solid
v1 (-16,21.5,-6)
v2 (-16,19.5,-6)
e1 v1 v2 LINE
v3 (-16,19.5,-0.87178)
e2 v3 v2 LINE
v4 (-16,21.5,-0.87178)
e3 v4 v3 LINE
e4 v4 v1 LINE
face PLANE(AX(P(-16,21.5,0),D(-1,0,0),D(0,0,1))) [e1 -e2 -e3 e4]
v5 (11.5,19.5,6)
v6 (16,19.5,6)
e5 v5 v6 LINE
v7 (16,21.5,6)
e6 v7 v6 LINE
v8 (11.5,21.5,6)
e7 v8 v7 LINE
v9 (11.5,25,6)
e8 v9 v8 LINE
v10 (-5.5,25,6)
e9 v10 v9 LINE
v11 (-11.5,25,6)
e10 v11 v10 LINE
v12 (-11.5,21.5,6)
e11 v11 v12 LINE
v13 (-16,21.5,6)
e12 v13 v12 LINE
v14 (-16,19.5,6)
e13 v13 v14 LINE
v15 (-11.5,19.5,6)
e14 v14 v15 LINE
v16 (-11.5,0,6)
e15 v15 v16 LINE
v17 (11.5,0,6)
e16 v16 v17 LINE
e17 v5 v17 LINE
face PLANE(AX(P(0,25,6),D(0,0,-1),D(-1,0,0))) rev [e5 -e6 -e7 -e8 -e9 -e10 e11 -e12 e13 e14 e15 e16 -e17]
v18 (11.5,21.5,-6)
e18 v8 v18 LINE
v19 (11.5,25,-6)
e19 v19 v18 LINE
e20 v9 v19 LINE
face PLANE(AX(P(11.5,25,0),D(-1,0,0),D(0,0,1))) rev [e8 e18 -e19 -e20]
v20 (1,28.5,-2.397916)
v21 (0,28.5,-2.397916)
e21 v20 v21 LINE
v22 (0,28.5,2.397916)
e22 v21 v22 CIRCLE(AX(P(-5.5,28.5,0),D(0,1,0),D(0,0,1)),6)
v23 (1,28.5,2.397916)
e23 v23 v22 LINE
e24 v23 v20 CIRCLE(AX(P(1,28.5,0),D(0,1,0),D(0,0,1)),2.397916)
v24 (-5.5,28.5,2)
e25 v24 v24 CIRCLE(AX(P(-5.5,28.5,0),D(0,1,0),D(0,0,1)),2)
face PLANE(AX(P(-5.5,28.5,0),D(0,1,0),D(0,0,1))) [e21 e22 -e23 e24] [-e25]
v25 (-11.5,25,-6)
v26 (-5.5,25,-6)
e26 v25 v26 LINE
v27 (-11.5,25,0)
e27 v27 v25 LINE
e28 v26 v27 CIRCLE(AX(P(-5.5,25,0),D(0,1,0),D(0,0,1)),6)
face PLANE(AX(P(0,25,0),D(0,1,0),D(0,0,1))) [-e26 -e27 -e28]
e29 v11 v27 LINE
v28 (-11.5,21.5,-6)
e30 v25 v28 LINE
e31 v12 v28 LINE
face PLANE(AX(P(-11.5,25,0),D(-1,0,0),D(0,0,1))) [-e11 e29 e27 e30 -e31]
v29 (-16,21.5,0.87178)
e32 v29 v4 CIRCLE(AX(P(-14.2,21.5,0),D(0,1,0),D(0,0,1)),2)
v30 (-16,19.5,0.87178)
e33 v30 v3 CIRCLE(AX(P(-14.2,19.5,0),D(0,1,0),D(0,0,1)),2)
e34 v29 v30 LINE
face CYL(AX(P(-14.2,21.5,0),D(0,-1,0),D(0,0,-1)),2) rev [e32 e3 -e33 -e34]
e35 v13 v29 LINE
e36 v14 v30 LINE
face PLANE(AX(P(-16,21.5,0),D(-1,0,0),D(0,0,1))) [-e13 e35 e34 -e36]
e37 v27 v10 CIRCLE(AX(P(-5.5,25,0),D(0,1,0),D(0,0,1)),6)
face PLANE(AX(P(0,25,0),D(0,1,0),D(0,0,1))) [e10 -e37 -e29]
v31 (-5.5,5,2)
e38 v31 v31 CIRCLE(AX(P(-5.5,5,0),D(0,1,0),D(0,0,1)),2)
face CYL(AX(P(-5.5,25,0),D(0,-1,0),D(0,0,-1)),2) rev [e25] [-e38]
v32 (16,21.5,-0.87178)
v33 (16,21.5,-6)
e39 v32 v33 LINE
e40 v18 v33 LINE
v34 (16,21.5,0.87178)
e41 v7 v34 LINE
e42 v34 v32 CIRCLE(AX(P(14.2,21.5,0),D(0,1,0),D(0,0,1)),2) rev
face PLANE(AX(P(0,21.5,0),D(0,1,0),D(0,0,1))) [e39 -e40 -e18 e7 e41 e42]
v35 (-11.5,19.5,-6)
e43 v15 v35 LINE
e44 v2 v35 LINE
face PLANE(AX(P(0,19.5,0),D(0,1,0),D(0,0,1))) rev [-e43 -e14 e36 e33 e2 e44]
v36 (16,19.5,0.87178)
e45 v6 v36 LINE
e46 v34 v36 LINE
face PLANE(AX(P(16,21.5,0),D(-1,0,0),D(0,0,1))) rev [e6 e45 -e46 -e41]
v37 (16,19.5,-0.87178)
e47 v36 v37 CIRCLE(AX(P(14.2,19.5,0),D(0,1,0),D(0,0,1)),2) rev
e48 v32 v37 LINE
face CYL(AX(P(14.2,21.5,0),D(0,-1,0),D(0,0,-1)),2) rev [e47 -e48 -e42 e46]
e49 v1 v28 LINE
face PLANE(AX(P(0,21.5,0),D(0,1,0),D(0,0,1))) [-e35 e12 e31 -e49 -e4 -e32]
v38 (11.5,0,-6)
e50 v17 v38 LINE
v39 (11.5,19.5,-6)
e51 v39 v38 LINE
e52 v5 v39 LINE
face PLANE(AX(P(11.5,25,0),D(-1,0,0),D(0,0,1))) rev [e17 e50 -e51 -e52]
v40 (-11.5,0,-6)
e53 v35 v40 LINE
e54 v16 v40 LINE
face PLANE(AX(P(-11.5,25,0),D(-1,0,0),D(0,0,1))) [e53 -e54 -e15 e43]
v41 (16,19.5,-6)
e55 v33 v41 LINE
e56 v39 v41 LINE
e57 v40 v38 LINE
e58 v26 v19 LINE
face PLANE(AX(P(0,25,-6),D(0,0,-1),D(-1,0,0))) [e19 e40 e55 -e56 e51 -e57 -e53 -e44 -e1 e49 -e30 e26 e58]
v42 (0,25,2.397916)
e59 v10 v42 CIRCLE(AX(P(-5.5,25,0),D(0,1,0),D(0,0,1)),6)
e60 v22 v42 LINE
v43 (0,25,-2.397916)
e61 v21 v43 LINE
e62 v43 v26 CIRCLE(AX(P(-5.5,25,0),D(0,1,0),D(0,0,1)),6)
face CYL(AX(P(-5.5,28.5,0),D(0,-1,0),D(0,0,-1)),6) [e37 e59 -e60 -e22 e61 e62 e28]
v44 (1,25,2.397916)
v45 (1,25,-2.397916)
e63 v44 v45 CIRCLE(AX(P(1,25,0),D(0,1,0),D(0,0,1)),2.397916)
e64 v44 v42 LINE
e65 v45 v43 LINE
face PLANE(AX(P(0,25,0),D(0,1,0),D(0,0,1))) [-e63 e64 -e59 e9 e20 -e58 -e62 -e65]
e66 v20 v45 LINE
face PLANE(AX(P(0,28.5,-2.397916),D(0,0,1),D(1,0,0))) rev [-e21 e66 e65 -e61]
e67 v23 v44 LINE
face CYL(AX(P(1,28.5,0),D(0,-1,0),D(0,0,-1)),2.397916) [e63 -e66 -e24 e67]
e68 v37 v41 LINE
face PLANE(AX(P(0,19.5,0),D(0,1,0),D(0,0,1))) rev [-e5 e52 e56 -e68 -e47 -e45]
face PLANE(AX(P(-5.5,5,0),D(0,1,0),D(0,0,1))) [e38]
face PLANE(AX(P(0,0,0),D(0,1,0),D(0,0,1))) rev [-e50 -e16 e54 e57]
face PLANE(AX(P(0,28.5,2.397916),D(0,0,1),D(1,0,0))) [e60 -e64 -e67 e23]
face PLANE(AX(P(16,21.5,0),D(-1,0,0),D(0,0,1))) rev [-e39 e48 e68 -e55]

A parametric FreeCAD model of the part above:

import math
import FreeCAD as App
import Part
import Sketcher


def add_polygon(sketch, points):
    """Adds a closed chain of lines whose ends are joined by coincident constraints."""
    first, n = sketch.GeometryCount, len(points)
    for a, b in zip(points, points[1:] + points[:1]):
        sketch.addGeometry(Part.LineSegment(App.Vector(*a, 0), App.Vector(*b, 0)), False)
    for i in range(n):
        sketch.addConstraint(Sketcher.Constraint("Coincident", first + i, 2, first + (i + 1) % n, 1))

doc = App.newDocument("Part")
body = doc.addObject("PartDesign::Body", "Body")

# Sketch on XZ plane
sketch1 = body.newObject("Sketcher::SketchObject", "Sketch")
sketch1.AttachmentSupport = (doc.getObject("XZ_Plane"), [""])
sketch1.MapMode = "FlatFace"
add_polygon(sketch1, [(-11.5, 6), (11.5, 6), (11.5, -6), (-11.5, -6)])  # lines 0-3
sketch1.addGeometry(Part.Circle(App.Vector(-5.5, 0, 0), App.Vector(0, 0, 1), 2), False)  # 4
sketch1.addConstraint(Sketcher.Constraint("Horizontal", 0))
sketch1.addConstraint(Sketcher.Constraint("Vertical", 1))
sketch1.addConstraint(Sketcher.Constraint("Horizontal", 2))
sketch1.addConstraint(Sketcher.Constraint("Vertical", 3))
sketch1.addConstraint(Sketcher.Constraint("Symmetric", 0, 2, 2, 2, -1, 1))
sketch1.addConstraint(Sketcher.Constraint("PointOnObject", 4, 3, -1))
sketch1.addConstraint(Sketcher.Constraint("Diameter", 4, 4.0))
sketch1.addConstraint(Sketcher.Constraint("DistanceX", 0, 1, 0, 2, 23.0))
sketch1.addConstraint(Sketcher.Constraint("DistanceY", 1, 2, 1, 1, 12.0))
sketch1.addConstraint(Sketcher.Constraint("DistanceX", 4, 3, 0, 2, 17.0))
pad1 = body.newObject("PartDesign::Pad", "Pad")
pad1.Profile = sketch1
pad1.Length = 25
pad1.Reversed = True

# Sketch on XZ plane
sketch2 = body.newObject("Sketcher::SketchObject", "Sketch001")
sketch2.AttachmentSupport = (doc.getObject("XZ_Plane"), [""])
sketch2.MapMode = "FlatFace"
sketch2.AttachmentOffset = App.Placement(App.Vector(0, 0, -19.5), App.Rotation())
sketch2.addGeometry(Part.LineSegment(App.Vector(16, -6, 0), App.Vector(11.5, -6, 0)), False)
sketch2.addGeometry(Part.LineSegment(App.Vector(11.5, -6, 0), App.Vector(11.5, 6, 0)), False)
sketch2.addGeometry(Part.LineSegment(App.Vector(11.5, 6, 0), App.Vector(16, 6, 0)), False)
sketch2.addGeometry(Part.LineSegment(App.Vector(16, 6, 0), App.Vector(16, 0.9, 0)), False)
sketch2.addGeometry(Part.ArcOfCircle(Part.Circle(App.Vector(14.2, 0, 0), App.Vector(0, 0, 1), 2), math.radians(26), math.radians(334)), False)
sketch2.addGeometry(Part.LineSegment(App.Vector(16, -0.9, 0), App.Vector(16, -6, 0)), False)
sketch2.addGeometry(Part.LineSegment(App.Vector(-11.5, -6, 0), App.Vector(-16, -6, 0)), False)
sketch2.addGeometry(Part.LineSegment(App.Vector(-16, -6, 0), App.Vector(-16, -0.9, 0)), False)
sketch2.addGeometry(Part.ArcOfCircle(Part.Circle(App.Vector(-14.2, 0, 0), App.Vector(0, 0, 1), 2), math.radians(-154), math.radians(0)), False)
sketch2.addGeometry(Part.ArcOfCircle(Part.Circle(App.Vector(-14.2, 0, 0), App.Vector(0, 0, 1), 2), math.radians(0), math.radians(154)), False)
sketch2.addGeometry(Part.LineSegment(App.Vector(-16, 0.9, 0), App.Vector(-16, 6, 0)), False)
sketch2.addGeometry(Part.LineSegment(App.Vector(-16, 6, 0), App.Vector(-11.5, 6, 0)), False)
sketch2.addGeometry(Part.LineSegment(App.Vector(-11.5, 6, 0), App.Vector(-11.5, -6, 0)), False)
sketch2.addConstraint(Sketcher.Constraint("Coincident", 0, 2, 1, 1))
sketch2.addConstraint(Sketcher.Constraint("Coincident", 1, 2, 2, 1))
sketch2.addConstraint(Sketcher.Constraint("Coincident", 2, 2, 3, 1))
sketch2.addConstraint(Sketcher.Constraint("Coincident", 3, 2, 4, 1))
sketch2.addConstraint(Sketcher.Constraint("Coincident", 4, 2, 5, 1))
sketch2.addConstraint(Sketcher.Constraint("Coincident", 5, 2, 0, 1))
sketch2.addConstraint(Sketcher.Constraint("Coincident", 6, 2, 7, 1))
sketch2.addConstraint(Sketcher.Constraint("Coincident", 7, 2, 8, 1))
sketch2.addConstraint(Sketcher.Constraint("Tangent", 8, 2, 9, 1))
sketch2.addConstraint(Sketcher.Constraint("Coincident", 9, 2, 10, 1))
sketch2.addConstraint(Sketcher.Constraint("Coincident", 10, 2, 11, 1))
sketch2.addConstraint(Sketcher.Constraint("Coincident", 11, 2, 12, 1))
sketch2.addConstraint(Sketcher.Constraint("Coincident", 12, 2, 6, 1))
sketch2.addConstraint(Sketcher.Constraint("Horizontal", 0))
sketch2.addConstraint(Sketcher.Constraint("Vertical", 1))
sketch2.addConstraint(Sketcher.Constraint("Horizontal", 2))
sketch2.addConstraint(Sketcher.Constraint("Vertical", 3))
sketch2.addConstraint(Sketcher.Constraint("Vertical", 5))
sketch2.addConstraint(Sketcher.Constraint("Horizontal", 6))
sketch2.addConstraint(Sketcher.Constraint("Vertical", 7))
sketch2.addConstraint(Sketcher.Constraint("Vertical", 10))
sketch2.addConstraint(Sketcher.Constraint("Horizontal", 11))
sketch2.addConstraint(Sketcher.Constraint("Vertical", 12))
sketch2.addConstraint(Sketcher.Constraint("Equal", 4, 8))
sketch2.addConstraint(Sketcher.Constraint("Equal", 8, 9))
sketch2.addConstraint(Sketcher.Constraint("Symmetric", 4, 3, 8, 3, -1, 1))
sketch2.addConstraint(Sketcher.Constraint("Symmetric", 2, 2, 6, 2, -1, 1))
sketch2.addConstraint(Sketcher.Constraint("Symmetric", 5, 2, 10, 2, -1, 1))
sketch2.addConstraint(Sketcher.Constraint("Symmetric", 5, 2, 6, 2, -2))
sketch2.addConstraint(Sketcher.Constraint("PointOnObject", 4, 3, -1))
sketch2.addConstraint(Sketcher.Constraint("PointOnObject", 8, 2, -1))
sketch2.addConstraint(Sketcher.Constraint("Equal", 2, 6))
sketch2.addConstraint(Sketcher.Constraint("Radius", 4, 2.0))
sketch2.addConstraint(Sketcher.Constraint("DistanceY", 1, 1, 1, 2, 12.0))
sketch2.addConstraint(Sketcher.Constraint("DistanceX", 0, 2, 0, 1, 4.5))
sketch2.addConstraint(Sketcher.Constraint("DistanceX", -1, 1, 2, 2, 16.0))
sketch2.addConstraint(Sketcher.Constraint("DistanceX", -1, 1, 4, 3, 14.2))
pad2 = body.newObject("PartDesign::Pad", "Pad001")
pad2.Profile = sketch2
pad2.Length = 2
pad2.Reversed = True

# Sketch on XZ plane
sketch3 = body.newObject("Sketcher::SketchObject", "Sketch002")
sketch3.AttachmentSupport = (doc.getObject("XZ_Plane"), [""])
sketch3.MapMode = "FlatFace"
sketch3.AttachmentOffset = App.Placement(App.Vector(0, 0, -25), App.Rotation())
sketch3.addGeometry(Part.ArcOfCircle(Part.Circle(App.Vector(-5.5, 0, 0), App.Vector(0, 0, 1), 6), math.radians(24), math.radians(336)), False)
sketch3.addGeometry(Part.LineSegment(App.Vector(0, 2.4, 0), App.Vector(1, 2.4, 0)), False)
sketch3.addGeometry(Part.ArcOfCircle(Part.Circle(App.Vector(1, 0, 0), App.Vector(0, 0, 1), 2.4), math.radians(-90), math.radians(90)), False)
sketch3.addGeometry(Part.LineSegment(App.Vector(1, -2.4, 0), App.Vector(0, -2.4, 0)), False)
sketch3.addGeometry(Part.Circle(App.Vector(-5.5, 0, 0), App.Vector(0, 0, 1), 2), False)
sketch3.addConstraint(Sketcher.Constraint("Coincident", 0, 1, 1, 1))
sketch3.addConstraint(Sketcher.Constraint("Tangent", 1, 2, 2, 2))
sketch3.addConstraint(Sketcher.Constraint("Tangent", 2, 1, 3, 1))
sketch3.addConstraint(Sketcher.Constraint("Coincident", 3, 2, 0, 2))
sketch3.addConstraint(Sketcher.Constraint("Horizontal", 1))
sketch3.addConstraint(Sketcher.Constraint("Horizontal", 3))
sketch3.addConstraint(Sketcher.Constraint("Coincident", 4, 3, 0, 3))
sketch3.addConstraint(Sketcher.Constraint("Symmetric", 0, 1, 3, 2, -1, 1))
sketch3.addConstraint(Sketcher.Constraint("PointOnObject", 0, 3, -1))
sketch3.addConstraint(Sketcher.Constraint("Diameter", 4, 4.0))
sketch3.addConstraint(Sketcher.Constraint("Radius", 0, 6.0))
sketch3.addConstraint(Sketcher.Constraint("DistanceX", 1, 1, 1, 2, 1.0))
sketch3.addConstraint(Sketcher.Constraint("DistanceX", 0, 3, -1, 1, 5.5))
pad3 = body.newObject("PartDesign::Pad", "Pad002")
pad3.Profile = sketch3
pad3.Length = 3.5
pad3.Reversed = True

# Sketch on XZ plane
sketch4 = body.newObject("Sketcher::SketchObject", "Sketch003")
sketch4.AttachmentSupport = (doc.getObject("XZ_Plane"), [""])
sketch4.MapMode = "FlatFace"
sketch4.addGeometry(Part.Circle(App.Vector(-5.5, 0, 0), App.Vector(0, 0, 1), 2), False)
sketch4.addConstraint(Sketcher.Constraint("PointOnObject", 0, 3, -1))
sketch4.addConstraint(Sketcher.Constraint("Diameter", 0, 4.0))
sketch4.addConstraint(Sketcher.Constraint("DistanceX", 0, 3, -1, 1, 5.5))
pad4 = body.newObject("PartDesign::Pad", "Pad003")
pad4.Profile = sketch4
pad4.Length = 5
pad4.Reversed = True

doc.recompute()
